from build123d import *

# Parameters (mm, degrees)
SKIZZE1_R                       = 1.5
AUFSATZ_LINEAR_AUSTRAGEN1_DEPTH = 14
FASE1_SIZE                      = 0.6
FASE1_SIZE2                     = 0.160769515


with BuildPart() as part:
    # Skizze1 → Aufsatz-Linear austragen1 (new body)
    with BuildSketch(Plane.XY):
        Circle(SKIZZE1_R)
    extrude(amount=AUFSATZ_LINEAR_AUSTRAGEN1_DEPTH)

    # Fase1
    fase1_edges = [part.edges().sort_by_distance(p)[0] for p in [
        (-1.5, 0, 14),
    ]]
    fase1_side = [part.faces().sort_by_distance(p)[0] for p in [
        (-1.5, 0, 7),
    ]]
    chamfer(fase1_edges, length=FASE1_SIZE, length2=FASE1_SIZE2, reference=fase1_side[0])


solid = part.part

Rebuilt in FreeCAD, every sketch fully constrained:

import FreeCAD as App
import Part
import Sketcher
from FreeCAD import Vector
Q = App.Units.Quantity


def edges_at(feature, points):
    """Names of the edges that pass closest to the given points."""
    edges = feature.Shape.Edges
    near = lambda p: min(range(len(edges)), key=lambda i: edges[i].distToShape(Part.Vertex(*p))[0])
    return sorted({f"Edge{near(p) + 1}" for p in points})

doc = App.newDocument("Part")
params = doc.addObject("Spreadsheet::Sheet", "Params")
for row, (alias, value) in enumerate([
    ("sketch1_diameter", "3 mm"),
    ("pad1_length", "14 mm"),
    ("chamfer_size", "0.6 mm"),
    ("chamfer_size2", "0.16077 mm"),
], start=1):
    params.set(f"A{row}", alias)
    params.set(f"B{row}", "=" + value)
    params.setAlias(f"B{row}", alias)

body = doc.addObject("PartDesign::Body", "Body")

# Sketch on XY plane
sketch1 = body.newObject("Sketcher::SketchObject", "Sketch")
sketch1.AttachmentSupport = (doc.getObject("XY_Plane"), [""])
sketch1.MapMode = "FlatFace"
sketch1.addGeometry(Part.Circle(Vector(0, 0, 0), Vector(0, 0, 1), 1.5), False)
sketch1.addConstraint([
    Sketcher.Constraint("Coincident", 0, 3, -1, 1),
    Sketcher.Constraint("Diameter", 0, Q("3 mm")),
])
sketch1.setExpression("Constraints[1]", "Params.sketch1_diameter")
pad1 = body.newObject("PartDesign::Pad", "Pad")
pad1.Profile = sketch1
pad1.setExpression("Length", "Params.pad1_length")
doc.recompute()

chamfer = body.newObject("PartDesign::Chamfer", "Chamfer")
chamfer.Base = (pad1, edges_at(pad1, [(-1.5, 0, 14)]))
chamfer.ChamferType = "Two distances"
chamfer.setExpression("Size", "Params.chamfer_size")
chamfer.setExpression("Size2", "Params.chamfer_size2")

doc.recompute()
